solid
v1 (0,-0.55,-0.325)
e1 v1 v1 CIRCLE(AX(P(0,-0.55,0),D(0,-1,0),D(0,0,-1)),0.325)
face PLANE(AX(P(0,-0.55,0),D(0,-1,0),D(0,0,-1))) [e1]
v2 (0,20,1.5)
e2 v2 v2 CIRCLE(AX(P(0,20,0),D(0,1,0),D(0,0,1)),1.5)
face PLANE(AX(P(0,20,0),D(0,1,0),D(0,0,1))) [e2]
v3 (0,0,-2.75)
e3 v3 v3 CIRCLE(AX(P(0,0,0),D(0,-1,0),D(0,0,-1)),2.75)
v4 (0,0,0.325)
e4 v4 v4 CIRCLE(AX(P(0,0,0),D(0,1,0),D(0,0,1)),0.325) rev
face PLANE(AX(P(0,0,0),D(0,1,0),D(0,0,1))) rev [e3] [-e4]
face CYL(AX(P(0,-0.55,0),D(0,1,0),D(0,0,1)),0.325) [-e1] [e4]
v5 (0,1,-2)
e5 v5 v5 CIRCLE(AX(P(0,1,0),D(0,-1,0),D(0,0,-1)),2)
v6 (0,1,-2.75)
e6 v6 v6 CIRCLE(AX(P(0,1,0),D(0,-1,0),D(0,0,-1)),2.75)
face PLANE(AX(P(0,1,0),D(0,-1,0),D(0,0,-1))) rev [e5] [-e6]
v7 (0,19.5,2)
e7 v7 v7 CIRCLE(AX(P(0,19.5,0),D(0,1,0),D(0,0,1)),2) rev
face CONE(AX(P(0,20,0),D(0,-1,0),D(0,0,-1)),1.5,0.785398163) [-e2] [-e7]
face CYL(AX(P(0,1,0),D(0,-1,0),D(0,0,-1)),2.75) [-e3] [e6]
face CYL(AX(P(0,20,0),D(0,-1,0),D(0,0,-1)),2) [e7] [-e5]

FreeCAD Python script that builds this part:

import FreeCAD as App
import Part
import Sketcher
Q = App.Units.Quantity


def edges_at(feature, points):
    """Names of the edges that pass closest to the given points."""
    edges = feature.Shape.Edges
    near = lambda p: min(range(len(edges)), key=lambda i: edges[i].distToShape(Part.Vertex(*p))[0])
    return sorted({f"Edge{near(p) + 1}" for p in points})

doc = App.newDocument("Part")
body = doc.addObject("PartDesign::Body", "Body")

sketch1 = body.newObject("Sketcher::SketchObject", "Sketch")
sketch1.AttachmentSupport = (doc.getObject("XZ_Plane"), [""])
sketch1.MapMode = "FlatFace"
sketch1.addGeometry(Part.Circle(App.Vector(0, 0, 0), App.Vector(0, 0, 1), 2), False)
sketch1.addConstraint([
    Sketcher.Constraint("Coincident", 0, 3, -1, 1),
    Sketcher.Constraint("Diameter", 0, Q("4 mm")),
])
pad1 = body.newObject("PartDesign::Pad", "Pad")
pad1.Profile = sketch1
pad1.Length = 20
pad1.Reversed = True
doc.recompute()

chamfer = body.newObject("PartDesign::Chamfer", "Chamfer")
chamfer.Base = (pad1, edges_at(pad1, [(0, 20, -2)]))
chamfer.Size = 0.5

sketch2 = body.newObject("Sketcher::SketchObject", "Sketch001")
sketch2.AttachmentSupport = (doc.getObject("XZ_Plane"), [""])
sketch2.MapMode = "FlatFace"
sketch2.addGeometry(Part.Circle(App.Vector(0, 0, 0), App.Vector(0, 0, 1), 2.8), False)
sketch2.addConstraint([
    Sketcher.Constraint("Coincident", 0, 3, -1, 1),
    Sketcher.Constraint("Diameter", 0, Q("5.5 mm")),
])
pad2 = body.newObject("PartDesign::Pad", "Pad001")
pad2.Profile = sketch2
pad2.Length = 1
pad2.Reversed = True

sketch3 = body.newObject("Sketcher::SketchObject", "Sketch002")
sketch3.AttachmentSupport = (doc.getObject("XZ_Plane"), [""])
sketch3.MapMode = "FlatFace"
sketch3.addGeometry(Part.Circle(App.Vector(0, 0, 0), App.Vector(0, 0, 1), 0.33), False)
sketch3.addConstraint([
    Sketcher.Constraint("Coincident", 0, 3, -1, 1),
    Sketcher.Constraint("Diameter", 0, Q("0.65 mm")),
])
pad3 = body.newObject("PartDesign::Pad", "Pad002")
pad3.Profile = sketch3
pad3.Length = 0.55

doc.recompute()
